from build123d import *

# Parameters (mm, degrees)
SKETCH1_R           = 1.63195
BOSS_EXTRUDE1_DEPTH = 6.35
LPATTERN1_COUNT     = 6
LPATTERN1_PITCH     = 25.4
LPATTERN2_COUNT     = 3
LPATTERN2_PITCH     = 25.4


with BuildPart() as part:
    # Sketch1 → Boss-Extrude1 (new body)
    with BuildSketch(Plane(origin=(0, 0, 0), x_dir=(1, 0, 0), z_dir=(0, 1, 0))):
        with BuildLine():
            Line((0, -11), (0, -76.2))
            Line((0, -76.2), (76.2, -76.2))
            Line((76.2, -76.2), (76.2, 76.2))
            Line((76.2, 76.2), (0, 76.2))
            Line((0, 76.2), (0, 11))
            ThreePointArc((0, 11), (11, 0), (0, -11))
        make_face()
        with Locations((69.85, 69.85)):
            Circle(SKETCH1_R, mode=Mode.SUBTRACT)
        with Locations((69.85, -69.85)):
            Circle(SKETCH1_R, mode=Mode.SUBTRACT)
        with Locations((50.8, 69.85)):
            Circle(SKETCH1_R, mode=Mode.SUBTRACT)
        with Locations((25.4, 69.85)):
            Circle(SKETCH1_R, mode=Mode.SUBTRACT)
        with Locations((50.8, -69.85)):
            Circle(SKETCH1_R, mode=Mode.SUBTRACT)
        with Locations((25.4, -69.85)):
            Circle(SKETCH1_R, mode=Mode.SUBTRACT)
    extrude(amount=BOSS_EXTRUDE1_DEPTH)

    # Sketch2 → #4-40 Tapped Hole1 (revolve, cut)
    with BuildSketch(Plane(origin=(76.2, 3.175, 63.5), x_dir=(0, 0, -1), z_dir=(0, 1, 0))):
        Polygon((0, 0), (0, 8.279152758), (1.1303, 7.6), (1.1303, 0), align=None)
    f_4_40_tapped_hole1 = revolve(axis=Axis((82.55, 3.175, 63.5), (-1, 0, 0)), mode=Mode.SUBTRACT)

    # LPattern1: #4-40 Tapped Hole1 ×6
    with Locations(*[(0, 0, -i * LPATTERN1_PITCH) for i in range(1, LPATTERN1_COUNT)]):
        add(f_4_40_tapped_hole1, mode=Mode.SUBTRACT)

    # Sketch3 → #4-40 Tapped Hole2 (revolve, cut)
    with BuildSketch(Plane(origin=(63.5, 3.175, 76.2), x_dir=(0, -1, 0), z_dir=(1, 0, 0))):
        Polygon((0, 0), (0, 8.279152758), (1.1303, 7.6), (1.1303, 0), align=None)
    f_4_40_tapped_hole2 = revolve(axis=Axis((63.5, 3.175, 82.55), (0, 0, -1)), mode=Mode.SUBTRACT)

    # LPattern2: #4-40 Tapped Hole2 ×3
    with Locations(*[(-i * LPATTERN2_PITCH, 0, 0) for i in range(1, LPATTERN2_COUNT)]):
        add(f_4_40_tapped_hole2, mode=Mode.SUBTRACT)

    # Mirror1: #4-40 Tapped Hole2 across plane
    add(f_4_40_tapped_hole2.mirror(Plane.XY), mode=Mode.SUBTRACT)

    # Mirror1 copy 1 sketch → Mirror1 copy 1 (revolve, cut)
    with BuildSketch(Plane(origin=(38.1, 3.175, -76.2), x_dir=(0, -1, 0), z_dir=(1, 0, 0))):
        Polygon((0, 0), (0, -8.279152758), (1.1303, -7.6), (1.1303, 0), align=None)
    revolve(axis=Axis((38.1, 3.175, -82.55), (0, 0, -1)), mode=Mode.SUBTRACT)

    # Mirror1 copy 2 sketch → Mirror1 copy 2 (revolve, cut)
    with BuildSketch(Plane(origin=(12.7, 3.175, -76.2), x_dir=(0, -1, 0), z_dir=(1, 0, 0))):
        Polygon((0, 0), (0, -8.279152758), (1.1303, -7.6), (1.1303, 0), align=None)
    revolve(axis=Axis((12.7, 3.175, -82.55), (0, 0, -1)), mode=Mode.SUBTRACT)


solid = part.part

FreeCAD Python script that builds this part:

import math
import FreeCAD as App
import Part
import Sketcher

V = App.Vector
Q = App.Units.Quantity

doc = App.newDocument("Part")
params = doc.addObject("Spreadsheet::Sheet", "Params")
for row, (alias, value) in enumerate([
    ("sketch1_radius", "11 mm"),
    ("sketch1_width", "76.2 mm"),
    ("sketch1_height", "65.2 mm"),
    ("pad1_length", "6.35 mm"),
    ("sketch2_width", "7.6 mm"),
    ("groove_angle", "360 deg"),
    ("linearpattern_pitch", "25.4 mm"),
    ("sketch3_height", "7.6 mm"),
    ("groove2_angle", "360 deg"),
    ("linearpattern2_pitch", "25.4 mm"),
    ("sketch4_height", "7.6 mm"),
    ("groove3_angle", "360 deg"),
    ("sketch5_height", "7.6 mm"),
    ("groove4_angle", "360 deg"),
], start=1):
    params.set(f"A{row}", alias)
    params.set(f"B{row}", "=" + value)
    params.setAlias(f"B{row}", alias)

body = doc.addObject("PartDesign::Body", "Body")

# Sketch on XZ plane
sketch1 = body.newObject("Sketcher::SketchObject", "Sketch")
sketch1.AttachmentSupport = (doc.getObject("XZ_Plane"), [""])
sketch1.MapMode = "FlatFace"
sketch1.addGeometry([
    Part.LineSegment(V(0, 11, 0), V(0, 76.2, 0)),  # 0
    Part.LineSegment(V(0, 76.2, 0), V(76.2, 76.2, 0)),  # 1
    Part.LineSegment(V(76.2, 76.2, 0), V(76.2, -76.2, 0)),  # 2
    Part.LineSegment(V(76.2, -76.2, 0), V(0, -76.2, 0)),  # 3
    Part.LineSegment(V(0, -76.2, 0), V(0, -11, 0)),  # 4
    Part.ArcOfCircle(Part.Circle(V(0, 0, 0), V(0, 0, 1), 11), math.radians(-90), math.radians(90)),  # 5
    Part.Circle(V(25.4, 69.8, 0), V(0, 0, 1), 1.6),  # 6
    Part.Circle(V(50.8, 69.8, 0), V(0, 0, 1), 1.6),  # 7
    Part.Circle(V(69.8, 69.8, 0), V(0, 0, 1), 1.6),  # 8
    Part.Circle(V(25.4, -69.8, 0), V(0, 0, 1), 1.6),  # 9
    Part.Circle(V(50.8, -69.8, 0), V(0, 0, 1), 1.6),  # 10
    Part.Circle(V(69.8, -69.8, 0), V(0, 0, 1), 1.6),  # 11
], False)
sketch1.addConstraint([
    Sketcher.Constraint("Coincident", 0, 2, 1, 1),
    Sketcher.Constraint("Coincident", 1, 2, 2, 1),
    Sketcher.Constraint("Coincident", 2, 2, 3, 1),
    Sketcher.Constraint("Coincident", 3, 2, 4, 1),
    Sketcher.Constraint("Coincident", 4, 2, 5, 1),
    Sketcher.Constraint("Coincident", 5, 2, 0, 1),
    Sketcher.Constraint("Vertical", 0),
    Sketcher.Constraint("Horizontal", 1),
    Sketcher.Constraint("Vertical", 2),
    Sketcher.Constraint("Horizontal", 3),
    Sketcher.Constraint("Vertical", 4),
    Sketcher.Constraint("Coincident", 5, 3, -1, 1),
    Sketcher.Constraint("Equal", 6, 7),
    Sketcher.Constraint("Equal", 7, 8),
    Sketcher.Constraint("Equal", 8, 9),
    Sketcher.Constraint("Equal", 9, 10),
    Sketcher.Constraint("Equal", 10, 11),
    Sketcher.Constraint("Symmetric", 0, 2, 3, 2, -1, 1),
    Sketcher.Constraint("Symmetric", 6, 3, 9, 3, -1),
    Sketcher.Constraint("Symmetric", 7, 3, 10, 3, -1),
    Sketcher.Constraint("Symmetric", 8, 3, 11, 3, -1),
    Sketcher.Constraint("PointOnObject", 0, 2, -2),
    Sketcher.Constraint("Horizontal", 6, 3, 7, 3),
    Sketcher.Constraint("Horizontal", 7, 3, 8, 3),
    Sketcher.Constraint("Radius", 5, Q("11 mm")),
    Sketcher.Constraint("DistanceX", 1, 1, 1, 2, Q("76.2 mm")),
    Sketcher.Constraint("DistanceY", 0, 1, 0, 2, Q("65.2 mm")),
    Sketcher.Constraint("Diameter", 6, Q("3.2639 mm")),
    Sketcher.Constraint("DistanceX", -1, 1, 6, 3, Q("25.4 mm")),
    Sketcher.Constraint("DistanceX", -1, 1, 7, 3, Q("50.8 mm")),
    Sketcher.Constraint("DistanceY", 9, 3, 6, 3, Q("139.7 mm")),
    Sketcher.Constraint("DistanceX", -1, 1, 8, 3, Q("69.85 mm")),
])
sketch1.setExpression("Constraints[24]", "Params.sketch1_radius")
sketch1.setExpression("Constraints[25]", "Params.sketch1_width")
sketch1.setExpression("Constraints[26]", "Params.sketch1_height")
pad1 = body.newObject("PartDesign::Pad", "Pad")
pad1.Profile = sketch1
pad1.setExpression("Length", "Params.pad1_length")
pad1.Reversed = True

# Sketch on XZ plane
sketch2 = body.newObject("Sketcher::SketchObject", "Sketch001")
sketch2.AttachmentSupport = (doc.getObject("XZ_Plane"), [""])
sketch2.MapMode = "FlatFace"
sketch2.AttachmentOffset = App.Placement(V(0, 0, -3.175), App.Rotation())
sketch2.addGeometry([
    Part.LineSegment(V(67.9, 63.5, 0), V(76.2, 63.5, 0)),
    Part.LineSegment(V(76.2, 63.5, 0), V(76.2, 62.4, 0)),
    Part.LineSegment(V(76.2, 62.4, 0), V(68.6, 62.4, 0)),
    Part.LineSegment(V(68.6, 62.4, 0), V(67.9, 63.5, 0)),
], False)
sketch2.addGeometry(Part.LineSegment(V(76.2, 63.5, 0), V(67.9, 63.5, 0)), True)  # axis
sketch2.addConstraint([
    Sketcher.Constraint("Coincident", 0, 2, 1, 1),
    Sketcher.Constraint("Coincident", 1, 2, 2, 1),
    Sketcher.Constraint("Coincident", 2, 2, 3, 1),
    Sketcher.Constraint("Coincident", 3, 2, 0, 1),
    Sketcher.Constraint("Horizontal", 0),
    Sketcher.Constraint("Vertical", 1),
    Sketcher.Constraint("Horizontal", 2),
    Sketcher.Constraint("Horizontal", 4),
    Sketcher.Constraint("Coincident", 4, 1, 0, 2),
    Sketcher.Constraint("Equal", 0, 4),
    Sketcher.Constraint("Angle", 3, Q("121 deg")),
    Sketcher.Constraint("DistanceX", 2, 2, 2, 1, Q("7.6 mm")),
    Sketcher.Constraint("DistanceX", -1, 1, 0, 2, Q("76.2 mm")),
    Sketcher.Constraint("DistanceY", -1, 1, 0, 2, Q("63.5 mm")),
    Sketcher.Constraint("DistanceY", 1, 2, 1, 1, Q("1.1303 mm")),
])
sketch2.setExpression("Constraints[11]", "Params.sketch2_width")
groove = body.newObject("PartDesign::Groove", "Groove")
groove.Profile = sketch2
groove.ReferenceAxis = (sketch2, ["Axis0"])
groove.setExpression("Angle", "Params.groove_angle")
doc.recompute()

linearpattern = body.newObject("PartDesign::LinearPattern", "LinearPattern")
linearpattern.Originals = [groove]
linearpattern.Direction = (doc.getObject("Z_Axis"), [""])
linearpattern.Mode = "offset"
linearpattern.setExpression("Offset", "Params.linearpattern_pitch")
linearpattern.Occurrences = 6
linearpattern.Reversed = True
body.Tip = linearpattern

# Sketch on YZ plane
sketch3 = body.newObject("Sketcher::SketchObject", "Sketch002")
sketch3.AttachmentSupport = (doc.getObject("YZ_Plane"), [""])
sketch3.MapMode = "FlatFace"
sketch3.AttachmentOffset = App.Placement(V(0, 0, 63.5), App.Rotation())
sketch3.addGeometry([
    Part.LineSegment(V(3.2, 67.9, 0), V(3.2, 76.2, 0)),
    Part.LineSegment(V(3.2, 76.2, 0), V(2, 76.2, 0)),
    Part.LineSegment(V(2, 76.2, 0), V(2, 68.6, 0)),
    Part.LineSegment(V(2, 68.6, 0), V(3.2, 67.9, 0)),
], False)
sketch3.addGeometry(Part.LineSegment(V(3.2, 76.2, 0), V(3.2, 67.9, 0)), True)  # axis
sketch3.addConstraint([
    Sketcher.Constraint("Coincident", 0, 2, 1, 1),
    Sketcher.Constraint("Coincident", 1, 2, 2, 1),
    Sketcher.Constraint("Coincident", 2, 2, 3, 1),
    Sketcher.Constraint("Coincident", 3, 2, 0, 1),
    Sketcher.Constraint("Vertical", 0),
    Sketcher.Constraint("Horizontal", 1),
    Sketcher.Constraint("Vertical", 2),
    Sketcher.Constraint("Vertical", 4),
    Sketcher.Constraint("Coincident", 4, 1, 0, 2),
    Sketcher.Constraint("Equal", 0, 4),
    Sketcher.Constraint("Angle", 3, Q("-31 deg")),
    Sketcher.Constraint("DistanceY", 2, 2, 2, 1, Q("7.6 mm")),
    Sketcher.Constraint("DistanceY", -1, 1, 0, 2, Q("76.2 mm")),
    Sketcher.Constraint("DistanceX", 1, 2, 1, 1, Q("1.1303 mm")),
    Sketcher.Constraint("DistanceX", -1, 1, 0, 2, Q("3.175 mm")),
])
sketch3.setExpression("Constraints[11]", "Params.sketch3_height")
groove2 = body.newObject("PartDesign::Groove", "Groove001")
groove2.Profile = sketch3
groove2.ReferenceAxis = (sketch3, ["Axis0"])
groove2.setExpression("Angle", "Params.groove2_angle")
doc.recompute()

linearpattern2 = body.newObject("PartDesign::LinearPattern", "LinearPattern001")
linearpattern2.Originals = [groove2]
linearpattern2.Direction = (doc.getObject("X_Axis"), [""])
linearpattern2.Mode = "offset"
linearpattern2.setExpression("Offset", "Params.linearpattern2_pitch")
linearpattern2.Occurrences = 3
linearpattern2.Reversed = True
body.Tip = linearpattern2
doc.recompute()

mirrored = body.newObject("PartDesign::Mirrored", "Mirrored")
mirrored.Originals = [groove2]
mirrored.MirrorPlane = (doc.getObject("XY_Plane"), [""])
body.Tip = mirrored

# Sketch on YZ plane
sketch4 = body.newObject("Sketcher::SketchObject", "Sketch003")
sketch4.AttachmentSupport = (doc.getObject("YZ_Plane"), [""])
sketch4.MapMode = "FlatFace"
sketch4.AttachmentOffset = App.Placement(V(0, 0, 38.1), App.Rotation())
sketch4.addGeometry([
    Part.LineSegment(V(3.2, -76.2, 0), V(3.2, -67.9, 0)),
    Part.LineSegment(V(3.2, -67.9, 0), V(2, -68.6, 0)),
    Part.LineSegment(V(2, -68.6, 0), V(2, -76.2, 0)),
    Part.LineSegment(V(2, -76.2, 0), V(3.2, -76.2, 0)),
], False)
sketch4.addGeometry(Part.LineSegment(V(3.2, -67.9, 0), V(3.2, -76.2, 0)), True)  # axis
sketch4.addConstraint([
    Sketcher.Constraint("Coincident", 0, 2, 1, 1),
    Sketcher.Constraint("Coincident", 1, 2, 2, 1),
    Sketcher.Constraint("Coincident", 2, 2, 3, 1),
    Sketcher.Constraint("Coincident", 3, 2, 0, 1),
    Sketcher.Constraint("Vertical", 0),
    Sketcher.Constraint("Vertical", 2),
    Sketcher.Constraint("Horizontal", 3),
    Sketcher.Constraint("Vertical", 4),
    Sketcher.Constraint("Coincident", 4, 1, 0, 2),
    Sketcher.Constraint("Horizontal", 2, 2, 4, 2),
    Sketcher.Constraint("Angle", 1, Q("-149 deg")),
    Sketcher.Constraint("DistanceY", 2, 2, 2, 1, Q("7.6 mm")),
    Sketcher.Constraint("DistanceY", 1, 2, -1, 1, Q("68.6 mm")),
    Sketcher.Constraint("DistanceX", 3, 1, 3, 2, Q("1.1303 mm")),
    Sketcher.Constraint("DistanceX", -1, 1, 0, 2, Q("3.175 mm")),
])
sketch4.setExpression("Constraints[11]", "Params.sketch4_height")
groove3 = body.newObject("PartDesign::Groove", "Groove002")
groove3.Profile = sketch4
groove3.ReferenceAxis = (sketch4, ["Axis0"])
groove3.setExpression("Angle", "Params.groove3_angle")

# Sketch on YZ plane
sketch5 = body.newObject("Sketcher::SketchObject", "Sketch004")
sketch5.AttachmentSupport = (doc.getObject("YZ_Plane"), [""])
sketch5.MapMode = "FlatFace"
sketch5.AttachmentOffset = App.Placement(V(0, 0, 12.7), App.Rotation())
sketch5.addGeometry([
    Part.LineSegment(V(3.2, -76.2, 0), V(3.2, -67.9, 0)),
    Part.LineSegment(V(3.2, -67.9, 0), V(2, -68.6, 0)),
    Part.LineSegment(V(2, -68.6, 0), V(2, -76.2, 0)),
    Part.LineSegment(V(2, -76.2, 0), V(3.2, -76.2, 0)),
], False)
sketch5.addGeometry(Part.LineSegment(V(3.2, -67.9, 0), V(3.2, -76.2, 0)), True)  # axis
sketch5.addConstraint([
    Sketcher.Constraint("Coincident", 0, 2, 1, 1),
    Sketcher.Constraint("Coincident", 1, 2, 2, 1),
    Sketcher.Constraint("Coincident", 2, 2, 3, 1),
    Sketcher.Constraint("Coincident", 3, 2, 0, 1),
    Sketcher.Constraint("Vertical", 0),
    Sketcher.Constraint("Vertical", 2),
    Sketcher.Constraint("Horizontal", 3),
    Sketcher.Constraint("Vertical", 4),
    Sketcher.Constraint("Coincident", 4, 1, 0, 2),
    Sketcher.Constraint("Horizontal", 2, 2, 4, 2),
    Sketcher.Constraint("Angle", 1, Q("-149 deg")),
    Sketcher.Constraint("DistanceY", 2, 2, 2, 1, Q("7.6 mm")),
    Sketcher.Constraint("DistanceY", 1, 2, -1, 1, Q("68.6 mm")),
    Sketcher.Constraint("DistanceX", 3, 1, 3, 2, Q("1.1303 mm")),
    Sketcher.Constraint("DistanceX", -1, 1, 0, 2, Q("3.175 mm")),
])
sketch5.setExpression("Constraints[11]", "Params.sketch5_height")
groove4 = body.newObject("PartDesign::Groove", "Groove003")
groove4.Profile = sketch5
groove4.ReferenceAxis = (sketch5, ["Axis0"])
groove4.setExpression("Angle", "Params.groove4_angle")

doc.recompute()
